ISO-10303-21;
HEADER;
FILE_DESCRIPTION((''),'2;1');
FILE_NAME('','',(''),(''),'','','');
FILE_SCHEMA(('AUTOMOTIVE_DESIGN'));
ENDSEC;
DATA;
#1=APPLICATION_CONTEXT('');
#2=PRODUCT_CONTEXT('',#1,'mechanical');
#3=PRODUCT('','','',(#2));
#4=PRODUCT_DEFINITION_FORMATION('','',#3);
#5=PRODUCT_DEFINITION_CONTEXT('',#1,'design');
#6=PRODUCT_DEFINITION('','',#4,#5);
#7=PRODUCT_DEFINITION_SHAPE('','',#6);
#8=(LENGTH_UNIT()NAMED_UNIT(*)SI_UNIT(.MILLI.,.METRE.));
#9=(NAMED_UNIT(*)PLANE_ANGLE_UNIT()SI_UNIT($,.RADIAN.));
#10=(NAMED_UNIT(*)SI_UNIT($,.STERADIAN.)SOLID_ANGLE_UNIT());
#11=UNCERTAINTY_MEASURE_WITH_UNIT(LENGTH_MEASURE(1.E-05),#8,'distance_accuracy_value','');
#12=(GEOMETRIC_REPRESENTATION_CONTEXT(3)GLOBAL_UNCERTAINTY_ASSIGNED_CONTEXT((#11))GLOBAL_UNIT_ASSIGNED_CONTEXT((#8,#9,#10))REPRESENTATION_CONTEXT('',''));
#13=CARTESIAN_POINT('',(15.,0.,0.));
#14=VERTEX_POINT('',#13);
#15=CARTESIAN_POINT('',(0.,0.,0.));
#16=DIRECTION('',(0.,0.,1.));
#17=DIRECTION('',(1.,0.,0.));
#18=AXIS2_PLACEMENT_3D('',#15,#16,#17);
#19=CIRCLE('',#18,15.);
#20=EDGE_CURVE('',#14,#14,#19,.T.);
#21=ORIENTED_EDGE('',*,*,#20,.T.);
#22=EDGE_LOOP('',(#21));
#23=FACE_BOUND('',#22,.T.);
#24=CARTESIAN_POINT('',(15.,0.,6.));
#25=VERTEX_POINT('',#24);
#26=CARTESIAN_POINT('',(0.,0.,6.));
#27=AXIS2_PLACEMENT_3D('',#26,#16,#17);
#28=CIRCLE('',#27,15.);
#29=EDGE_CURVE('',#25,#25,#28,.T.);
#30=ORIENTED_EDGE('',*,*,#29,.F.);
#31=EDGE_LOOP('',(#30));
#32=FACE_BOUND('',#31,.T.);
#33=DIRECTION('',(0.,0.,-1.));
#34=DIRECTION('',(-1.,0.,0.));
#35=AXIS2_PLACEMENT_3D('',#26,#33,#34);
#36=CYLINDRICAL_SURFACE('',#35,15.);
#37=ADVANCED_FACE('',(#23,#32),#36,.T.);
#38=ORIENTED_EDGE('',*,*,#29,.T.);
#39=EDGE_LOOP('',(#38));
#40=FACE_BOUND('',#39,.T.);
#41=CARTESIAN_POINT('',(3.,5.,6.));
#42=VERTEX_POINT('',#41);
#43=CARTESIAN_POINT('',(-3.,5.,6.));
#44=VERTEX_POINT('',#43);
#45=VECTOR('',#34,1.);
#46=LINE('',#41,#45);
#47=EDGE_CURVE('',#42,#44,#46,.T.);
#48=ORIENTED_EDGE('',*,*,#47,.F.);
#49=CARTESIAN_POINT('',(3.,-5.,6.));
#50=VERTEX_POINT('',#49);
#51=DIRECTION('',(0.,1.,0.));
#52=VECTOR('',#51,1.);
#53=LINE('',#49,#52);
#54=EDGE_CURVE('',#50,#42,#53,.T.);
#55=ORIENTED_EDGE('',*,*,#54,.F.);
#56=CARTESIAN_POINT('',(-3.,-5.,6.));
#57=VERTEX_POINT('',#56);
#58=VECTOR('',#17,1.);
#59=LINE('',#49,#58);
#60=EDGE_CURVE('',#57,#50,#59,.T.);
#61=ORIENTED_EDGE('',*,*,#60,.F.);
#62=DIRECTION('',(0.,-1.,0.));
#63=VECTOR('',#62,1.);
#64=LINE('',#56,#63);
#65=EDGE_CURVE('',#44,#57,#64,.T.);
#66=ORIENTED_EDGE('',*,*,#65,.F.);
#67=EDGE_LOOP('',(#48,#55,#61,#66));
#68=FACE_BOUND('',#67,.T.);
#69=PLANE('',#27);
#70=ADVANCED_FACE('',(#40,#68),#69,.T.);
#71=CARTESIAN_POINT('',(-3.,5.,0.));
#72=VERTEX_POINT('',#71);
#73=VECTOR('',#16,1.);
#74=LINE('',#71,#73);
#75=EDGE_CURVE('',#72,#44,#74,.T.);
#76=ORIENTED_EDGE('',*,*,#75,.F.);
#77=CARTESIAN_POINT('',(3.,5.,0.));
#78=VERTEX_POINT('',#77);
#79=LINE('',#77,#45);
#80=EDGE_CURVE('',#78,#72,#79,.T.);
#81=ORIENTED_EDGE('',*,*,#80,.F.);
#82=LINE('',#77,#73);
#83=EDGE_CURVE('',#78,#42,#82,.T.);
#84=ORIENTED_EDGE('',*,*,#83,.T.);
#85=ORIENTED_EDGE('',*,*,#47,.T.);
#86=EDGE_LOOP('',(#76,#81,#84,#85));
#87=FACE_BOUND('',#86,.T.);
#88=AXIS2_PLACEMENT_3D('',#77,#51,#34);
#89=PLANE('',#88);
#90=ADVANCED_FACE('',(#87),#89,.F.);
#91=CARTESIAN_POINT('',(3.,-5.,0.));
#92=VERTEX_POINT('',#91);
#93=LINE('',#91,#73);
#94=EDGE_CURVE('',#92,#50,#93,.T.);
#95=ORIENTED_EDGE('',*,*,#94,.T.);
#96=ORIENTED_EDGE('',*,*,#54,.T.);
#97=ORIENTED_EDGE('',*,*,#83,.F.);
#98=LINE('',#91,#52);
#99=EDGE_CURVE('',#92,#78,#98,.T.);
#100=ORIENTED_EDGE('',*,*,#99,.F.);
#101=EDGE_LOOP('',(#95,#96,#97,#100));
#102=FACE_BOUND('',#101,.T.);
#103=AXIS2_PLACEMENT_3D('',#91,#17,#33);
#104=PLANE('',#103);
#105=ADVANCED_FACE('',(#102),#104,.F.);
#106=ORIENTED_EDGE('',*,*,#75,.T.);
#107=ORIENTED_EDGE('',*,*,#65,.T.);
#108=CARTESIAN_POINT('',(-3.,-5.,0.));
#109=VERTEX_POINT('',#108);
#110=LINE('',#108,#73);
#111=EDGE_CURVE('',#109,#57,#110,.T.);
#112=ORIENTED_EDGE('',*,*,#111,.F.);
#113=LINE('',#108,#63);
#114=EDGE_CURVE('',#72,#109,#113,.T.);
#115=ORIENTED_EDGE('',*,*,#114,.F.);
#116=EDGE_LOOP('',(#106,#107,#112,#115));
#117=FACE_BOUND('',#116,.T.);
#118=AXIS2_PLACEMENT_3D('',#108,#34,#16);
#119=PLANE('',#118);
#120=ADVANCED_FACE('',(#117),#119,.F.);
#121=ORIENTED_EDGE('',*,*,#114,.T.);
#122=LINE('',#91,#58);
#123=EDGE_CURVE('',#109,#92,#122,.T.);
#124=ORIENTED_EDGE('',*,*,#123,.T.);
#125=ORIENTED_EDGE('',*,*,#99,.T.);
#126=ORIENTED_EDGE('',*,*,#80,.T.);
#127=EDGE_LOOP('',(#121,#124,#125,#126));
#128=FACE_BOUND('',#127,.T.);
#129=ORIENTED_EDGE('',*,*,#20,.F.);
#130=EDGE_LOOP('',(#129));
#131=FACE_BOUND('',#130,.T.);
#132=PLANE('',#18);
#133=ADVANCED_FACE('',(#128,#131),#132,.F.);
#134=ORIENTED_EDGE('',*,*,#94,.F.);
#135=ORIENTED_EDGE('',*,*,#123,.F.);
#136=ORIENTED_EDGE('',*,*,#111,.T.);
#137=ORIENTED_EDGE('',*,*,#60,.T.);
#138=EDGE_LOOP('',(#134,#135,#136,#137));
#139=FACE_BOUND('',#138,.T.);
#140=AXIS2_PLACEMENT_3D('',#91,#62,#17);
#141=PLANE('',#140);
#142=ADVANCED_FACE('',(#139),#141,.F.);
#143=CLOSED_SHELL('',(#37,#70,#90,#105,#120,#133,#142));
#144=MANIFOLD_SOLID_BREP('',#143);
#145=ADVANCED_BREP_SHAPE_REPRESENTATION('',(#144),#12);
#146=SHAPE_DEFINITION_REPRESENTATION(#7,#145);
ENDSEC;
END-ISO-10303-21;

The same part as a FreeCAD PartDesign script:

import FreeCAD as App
import Part
import Sketcher
Q = App.Units.Quantity


def add_polygon(sketch, points):
    """Adds a closed chain of lines whose ends are joined by coincident constraints."""
    first, n = sketch.GeometryCount, len(points)
    for a, b in zip(points, points[1:] + points[:1]):
        sketch.addGeometry(Part.LineSegment(App.Vector(*a, 0), App.Vector(*b, 0)), False)
    for i in range(n):
        sketch.addConstraint(Sketcher.Constraint("Coincident", first + i, 2, first + (i + 1) % n, 1))

doc = App.newDocument("Part")
params = doc.addObject("Spreadsheet::Sheet", "Params")
for row, (alias, value) in enumerate([
    ("sketch1_diameter", "30 mm"),
    ("pad1_length", "6 mm"),
    ("sketch2_width", "6 mm"),
    ("sketch2_height", "10 mm"),
    ("pocket1_length", "6 mm"),
], start=1):
    params.set(f"A{row}", alias)
    params.set(f"B{row}", "=" + value)
    params.setAlias(f"B{row}", alias)

body = doc.addObject("PartDesign::Body", "Body")

sketch1 = body.newObject("Sketcher::SketchObject", "Sketch")
sketch1.AttachmentSupport = (doc.getObject("XY_Plane"), [""])
sketch1.MapMode = "FlatFace"
sketch1.addGeometry(Part.Circle(App.Vector(0, 0, 0), App.Vector(0, 0, 1), 15), False)
sketch1.addConstraint([
    Sketcher.Constraint("Coincident", 0, 3, -1, 1),
    Sketcher.Constraint("Diameter", 0, Q("30 mm")),
])
sketch1.setExpression("Constraints[1]", "Params.sketch1_diameter")
pad1 = body.newObject("PartDesign::Pad", "Pad")
pad1.Profile = sketch1
pad1.setExpression("Length", "Params.pad1_length")

sketch2 = body.newObject("Sketcher::SketchObject", "Sketch001")
sketch2.AttachmentSupport = (doc.getObject("XY_Plane"), [""])
sketch2.MapMode = "FlatFace"
sketch2.AttachmentOffset = App.Placement(App.Vector(0, 0, 6), App.Rotation())
add_polygon(sketch2, [(-3, 5), (-3, -5), (3, -5), (3, 5)])
sketch2.addConstraint([
    Sketcher.Constraint("Vertical", 0),
    Sketcher.Constraint("Horizontal", 1),
    Sketcher.Constraint("Vertical", 2),
    Sketcher.Constraint("Horizontal", 3),
    Sketcher.Constraint("Symmetric", 0, 2, 2, 2, -1, 1),
    Sketcher.Constraint("DistanceX", 1, 1, 1, 2, Q("6 mm")),
    Sketcher.Constraint("DistanceY", 0, 2, 0, 1, Q("10 mm")),
])
sketch2.setExpression("Constraints[9]", "Params.sketch2_width")
sketch2.setExpression("Constraints[10]", "Params.sketch2_height")
pocket1 = body.newObject("PartDesign::Pocket", "Pocket")
pocket1.Profile = sketch2
pocket1.setExpression("Length", "Params.pocket1_length")

doc.recompute()
